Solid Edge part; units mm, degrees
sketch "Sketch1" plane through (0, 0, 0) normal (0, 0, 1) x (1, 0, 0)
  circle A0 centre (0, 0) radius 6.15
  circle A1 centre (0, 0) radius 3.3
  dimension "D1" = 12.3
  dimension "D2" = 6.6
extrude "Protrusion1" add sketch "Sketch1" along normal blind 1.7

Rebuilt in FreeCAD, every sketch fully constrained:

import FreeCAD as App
import Part
import Sketcher
from FreeCAD import Vector

doc = App.newDocument("Part")
body = doc.addObject("PartDesign::Body", "Body")

# Sketch on XY plane
sketch1 = doc.addObject("Sketcher::SketchObject", "Sketch")
body.addObject(sketch1)
sketch1.AttachmentSupport = (doc.XY_Plane, [""])
sketch1.MapMode = "FlatFace"
sketch1.addGeometry([
    Part.Circle(Vector(0, 0, 0), Vector(0, 0, 1), 6.15),
    Part.Circle(Vector(0, 0, 0), Vector(0, 0, 1), 3.3),
], False)
sketch1.addConstraint([
    Sketcher.Constraint("Coincident", 0, 3, -1, 1),
    Sketcher.Constraint("Coincident", 1, 3, -1, 1),
    Sketcher.Constraint("Diameter", 0, 12.3),
    Sketcher.Constraint("Diameter", 1, 6.6),
])
pad1 = doc.addObject("PartDesign::Pad", "Pad")
body.addObject(pad1)
pad1.Profile = sketch1
pad1.Length = 1.7

doc.recompute()
